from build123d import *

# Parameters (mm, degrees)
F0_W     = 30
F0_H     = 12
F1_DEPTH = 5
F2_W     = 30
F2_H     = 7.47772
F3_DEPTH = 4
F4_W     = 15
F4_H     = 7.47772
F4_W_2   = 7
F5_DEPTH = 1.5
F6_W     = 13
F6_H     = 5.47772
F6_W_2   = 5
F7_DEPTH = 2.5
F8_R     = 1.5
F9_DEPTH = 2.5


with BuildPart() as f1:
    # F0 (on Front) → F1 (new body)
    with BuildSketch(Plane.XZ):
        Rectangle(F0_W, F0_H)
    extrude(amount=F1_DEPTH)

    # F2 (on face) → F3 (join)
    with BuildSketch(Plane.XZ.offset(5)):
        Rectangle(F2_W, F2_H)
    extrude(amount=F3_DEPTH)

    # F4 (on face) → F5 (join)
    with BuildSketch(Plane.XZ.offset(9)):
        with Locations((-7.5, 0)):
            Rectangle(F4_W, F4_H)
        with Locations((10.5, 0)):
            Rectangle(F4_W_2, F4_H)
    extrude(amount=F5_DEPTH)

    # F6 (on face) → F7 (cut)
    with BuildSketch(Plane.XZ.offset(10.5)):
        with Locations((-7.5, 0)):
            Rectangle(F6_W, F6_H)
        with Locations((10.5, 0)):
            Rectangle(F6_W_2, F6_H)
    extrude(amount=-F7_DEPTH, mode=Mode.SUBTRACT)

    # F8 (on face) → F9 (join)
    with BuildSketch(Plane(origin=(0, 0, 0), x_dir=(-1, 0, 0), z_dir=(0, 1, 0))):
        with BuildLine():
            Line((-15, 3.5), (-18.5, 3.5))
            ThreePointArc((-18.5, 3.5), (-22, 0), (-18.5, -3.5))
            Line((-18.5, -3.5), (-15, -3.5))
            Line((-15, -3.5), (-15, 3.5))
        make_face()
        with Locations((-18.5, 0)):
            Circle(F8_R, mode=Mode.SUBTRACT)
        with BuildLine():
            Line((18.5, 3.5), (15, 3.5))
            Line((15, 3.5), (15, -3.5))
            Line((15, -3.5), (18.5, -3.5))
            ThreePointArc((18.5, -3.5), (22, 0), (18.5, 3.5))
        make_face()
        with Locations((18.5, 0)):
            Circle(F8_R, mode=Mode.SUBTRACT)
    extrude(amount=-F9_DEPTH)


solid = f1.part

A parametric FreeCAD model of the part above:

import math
import FreeCAD as App
import Part
import Sketcher
Q = App.Units.Quantity


def add_polygon(sketch, points):
    """Adds a closed chain of lines whose ends are joined by coincident constraints."""
    first, n = sketch.GeometryCount, len(points)
    for a, b in zip(points, points[1:] + points[:1]):
        sketch.addGeometry(Part.LineSegment(App.Vector(*a, 0), App.Vector(*b, 0)), False)
    for i in range(n):
        sketch.addConstraint(Sketcher.Constraint("Coincident", first + i, 2, first + (i + 1) % n, 1))

doc = App.newDocument("Part")
body = doc.addObject("PartDesign::Body", "Body")

# Sketch on XZ plane
sketch1 = doc.addObject("Sketcher::SketchObject", "Sketch")
body.addObject(sketch1)
sketch1.AttachmentSupport = (doc.XZ_Plane, [""])
sketch1.MapMode = "FlatFace"
add_polygon(sketch1, [(-15, 6), (-15, -6), (15, -6), (15, 6)])  # lines 0-3
sketch1.addConstraint([
    Sketcher.Constraint("Vertical", 0),
    Sketcher.Constraint("Horizontal", 1),
    Sketcher.Constraint("Vertical", 2),
    Sketcher.Constraint("Horizontal", 3),
    Sketcher.Constraint("Symmetric", 0, 2, 2, 2, -1, 1),
    Sketcher.Constraint("DistanceX", 1, 1, 1, 2, Q("30 mm")),
    Sketcher.Constraint("DistanceY", 0, 2, 0, 1, Q("12 mm")),
])
pad1 = doc.addObject("PartDesign::Pad", "Pad")
body.addObject(pad1)
pad1.Profile = sketch1
pad1.Length = 5

# Sketch on XZ plane
sketch2 = doc.addObject("Sketcher::SketchObject", "Sketch001")
body.addObject(sketch2)
sketch2.AttachmentSupport = (doc.XZ_Plane, [""])
sketch2.MapMode = "FlatFace"
sketch2.AttachmentOffset = App.Placement(App.Vector(0, 0, 5), App.Rotation())
add_polygon(sketch2, [(-15, 3.73886), (-15, -3.73886), (15, -3.73886), (15, 3.73886)])  # lines 0-3
sketch2.addConstraint([
    Sketcher.Constraint("Vertical", 0),
    Sketcher.Constraint("Horizontal", 1),
    Sketcher.Constraint("Vertical", 2),
    Sketcher.Constraint("Horizontal", 3),
    Sketcher.Constraint("Symmetric", 0, 2, 2, 2, -1, 1),
    Sketcher.Constraint("DistanceX", 1, 1, 1, 2, Q("30 mm")),
    Sketcher.Constraint("DistanceY", 0, 2, 0, 1, Q("7.47772 mm")),
])
pad2 = doc.addObject("PartDesign::Pad", "Pad001")
body.addObject(pad2)
pad2.Profile = sketch2
pad2.Length = 4

# Sketch on XZ plane
sketch3 = doc.addObject("Sketcher::SketchObject", "Sketch002")
body.addObject(sketch3)
sketch3.AttachmentSupport = (doc.XZ_Plane, [""])
sketch3.MapMode = "FlatFace"
sketch3.AttachmentOffset = App.Placement(App.Vector(0, 0, 9), App.Rotation())
add_polygon(sketch3, [(-15, 3.73886), (-15, -3.73886), (0, -3.73886), (0, 3.73886)])  # lines 0-3
add_polygon(sketch3, [(7, 3.73886), (7, -3.73886), (14, -3.73886), (14, 3.73886)])  # lines 4-7
sketch3.addConstraint([
    Sketcher.Constraint("Vertical", 0),
    Sketcher.Constraint("Horizontal", 1),
    Sketcher.Constraint("Vertical", 2),
    Sketcher.Constraint("Horizontal", 3),
    Sketcher.Constraint("Vertical", 4),
    Sketcher.Constraint("Horizontal", 5),
    Sketcher.Constraint("Vertical", 6),
    Sketcher.Constraint("Horizontal", 7),
    Sketcher.Constraint("Symmetric", 1, 2, 2, 2, -1, 1),
    Sketcher.Constraint("Horizontal", 1, 2, 4, 2),
    Sketcher.Constraint("Horizontal", 3, 2, 6, 2),
    Sketcher.Constraint("DistanceX", 1, 1, 1, 2, Q("15 mm")),
    Sketcher.Constraint("DistanceX", 5, 1, 5, 2, Q("7 mm")),
    Sketcher.Constraint("DistanceX", -1, 1, 4, 2, Q("7 mm")),
    Sketcher.Constraint("DistanceY", 0, 2, 0, 1, Q("7.47772 mm")),
])
pad3 = doc.addObject("PartDesign::Pad", "Pad002")
body.addObject(pad3)
pad3.Profile = sketch3
pad3.Length = 1.5

# Sketch on XZ plane
sketch4 = doc.addObject("Sketcher::SketchObject", "Sketch003")
body.addObject(sketch4)
sketch4.AttachmentSupport = (doc.XZ_Plane, [""])
sketch4.MapMode = "FlatFace"
sketch4.AttachmentOffset = App.Placement(App.Vector(0, 0, 10.5), App.Rotation())
add_polygon(sketch4, [(-14, 2.73886), (-14, -2.73886), (-1, -2.73886), (-1, 2.73886)])  # lines 0-3
add_polygon(sketch4, [(8, 2.73886), (8, -2.73886), (13, -2.73886), (13, 2.73886)])  # lines 4-7
sketch4.addConstraint([
    Sketcher.Constraint("Vertical", 0),
    Sketcher.Constraint("Horizontal", 1),
    Sketcher.Constraint("Vertical", 2),
    Sketcher.Constraint("Horizontal", 3),
    Sketcher.Constraint("Vertical", 4),
    Sketcher.Constraint("Horizontal", 5),
    Sketcher.Constraint("Vertical", 6),
    Sketcher.Constraint("Horizontal", 7),
    Sketcher.Constraint("Horizontal", 1, 2, 4, 2),
    Sketcher.Constraint("Horizontal", 3, 2, 6, 2),
    Sketcher.Constraint("DistanceX", 1, 1, 1, 2, Q("13 mm")),
    Sketcher.Constraint("DistanceX", 5, 1, 5, 2, Q("5 mm")),
    Sketcher.Constraint("DistanceX", 0, 2, -1, 1, Q("14 mm")),
    Sketcher.Constraint("DistanceX", -1, 1, 4, 2, Q("8 mm")),
    Sketcher.Constraint("DistanceY", 0, 2, 0, 1, Q("5.47772 mm")),
    Sketcher.Constraint("DistanceY", 0, 2, -1, 1, Q("2.73886 mm")),
])
pocket1 = doc.addObject("PartDesign::Pocket", "Pocket")
body.addObject(pocket1)
pocket1.Profile = sketch4
pocket1.Length = 2.5

# Sketch on XZ plane
sketch5 = doc.addObject("Sketcher::SketchObject", "Sketch004")
body.addObject(sketch5)
sketch5.AttachmentSupport = (doc.XZ_Plane, [""])
sketch5.MapMode = "FlatFace"
sketch5.addGeometry([
    Part.LineSegment(App.Vector(15, 3.5, 0), App.Vector(18.5, 3.5, 0)),  # 0
    Part.ArcOfCircle(Part.Circle(App.Vector(18.5, 0, 0), App.Vector(0, 0, 1), 3.5), math.radians(-90), math.radians(90)),  # 1
    Part.LineSegment(App.Vector(18.5, -3.5, 0), App.Vector(15, -3.5, 0)),  # 2
    Part.LineSegment(App.Vector(15, -3.5, 0), App.Vector(15, 3.5, 0)),  # 3
    Part.Circle(App.Vector(18.5, 0, 0), App.Vector(0, 0, 1), 1.5),  # 4
    Part.LineSegment(App.Vector(-18.5, 3.5, 0), App.Vector(-15, 3.5, 0)),  # 5
    Part.LineSegment(App.Vector(-15, 3.5, 0), App.Vector(-15, -3.5, 0)),  # 6
    Part.LineSegment(App.Vector(-15, -3.5, 0), App.Vector(-18.5, -3.5, 0)),  # 7
    Part.ArcOfCircle(Part.Circle(App.Vector(-18.5, 0, 0), App.Vector(0, 0, 1), 3.5), math.radians(90), math.radians(270)),  # 8
    Part.Circle(App.Vector(-18.5, 0, 0), App.Vector(0, 0, 1), 1.5),  # 9
], False)
sketch5.addConstraint([
    Sketcher.Constraint("Tangent", 0, 2, 1, 2),
    Sketcher.Constraint("Tangent", 1, 1, 2, 1),
    Sketcher.Constraint("Coincident", 2, 2, 3, 1),
    Sketcher.Constraint("Coincident", 3, 2, 0, 1),
    Sketcher.Constraint("Coincident", 5, 2, 6, 1),
    Sketcher.Constraint("Coincident", 6, 2, 7, 1),
    Sketcher.Constraint("Tangent", 7, 2, 8, 2),
    Sketcher.Constraint("Tangent", 8, 1, 5, 1),
    Sketcher.Constraint("Horizontal", 0),
    Sketcher.Constraint("Horizontal", 2),
    Sketcher.Constraint("Vertical", 3),
    Sketcher.Constraint("Horizontal", 5),
    Sketcher.Constraint("Vertical", 6),
    Sketcher.Constraint("Horizontal", 7),
    Sketcher.Constraint("Coincident", 4, 3, 1, 3),
    Sketcher.Constraint("Coincident", 9, 3, 8, 3),
    Sketcher.Constraint("Equal", 1, 8),
    Sketcher.Constraint("Equal", 4, 9),
    Sketcher.Constraint("Symmetric", 1, 3, 8, 3, -1, 1),
    Sketcher.Constraint("Symmetric", 3, 2, 5, 2, -2),
    Sketcher.Constraint("Diameter", 4, Q("3 mm")),
    Sketcher.Constraint("Radius", 1, Q("3.5 mm")),
    Sketcher.Constraint("DistanceX", 0, 1, 0, 2, Q("3.5 mm")),
    Sketcher.Constraint("DistanceX", -1, 1, 2, 2, Q("15 mm")),
])
pad4 = doc.addObject("PartDesign::Pad", "Pad003")
body.addObject(pad4)
pad4.Profile = sketch5
pad4.Length = 2.5

doc.recompute()
